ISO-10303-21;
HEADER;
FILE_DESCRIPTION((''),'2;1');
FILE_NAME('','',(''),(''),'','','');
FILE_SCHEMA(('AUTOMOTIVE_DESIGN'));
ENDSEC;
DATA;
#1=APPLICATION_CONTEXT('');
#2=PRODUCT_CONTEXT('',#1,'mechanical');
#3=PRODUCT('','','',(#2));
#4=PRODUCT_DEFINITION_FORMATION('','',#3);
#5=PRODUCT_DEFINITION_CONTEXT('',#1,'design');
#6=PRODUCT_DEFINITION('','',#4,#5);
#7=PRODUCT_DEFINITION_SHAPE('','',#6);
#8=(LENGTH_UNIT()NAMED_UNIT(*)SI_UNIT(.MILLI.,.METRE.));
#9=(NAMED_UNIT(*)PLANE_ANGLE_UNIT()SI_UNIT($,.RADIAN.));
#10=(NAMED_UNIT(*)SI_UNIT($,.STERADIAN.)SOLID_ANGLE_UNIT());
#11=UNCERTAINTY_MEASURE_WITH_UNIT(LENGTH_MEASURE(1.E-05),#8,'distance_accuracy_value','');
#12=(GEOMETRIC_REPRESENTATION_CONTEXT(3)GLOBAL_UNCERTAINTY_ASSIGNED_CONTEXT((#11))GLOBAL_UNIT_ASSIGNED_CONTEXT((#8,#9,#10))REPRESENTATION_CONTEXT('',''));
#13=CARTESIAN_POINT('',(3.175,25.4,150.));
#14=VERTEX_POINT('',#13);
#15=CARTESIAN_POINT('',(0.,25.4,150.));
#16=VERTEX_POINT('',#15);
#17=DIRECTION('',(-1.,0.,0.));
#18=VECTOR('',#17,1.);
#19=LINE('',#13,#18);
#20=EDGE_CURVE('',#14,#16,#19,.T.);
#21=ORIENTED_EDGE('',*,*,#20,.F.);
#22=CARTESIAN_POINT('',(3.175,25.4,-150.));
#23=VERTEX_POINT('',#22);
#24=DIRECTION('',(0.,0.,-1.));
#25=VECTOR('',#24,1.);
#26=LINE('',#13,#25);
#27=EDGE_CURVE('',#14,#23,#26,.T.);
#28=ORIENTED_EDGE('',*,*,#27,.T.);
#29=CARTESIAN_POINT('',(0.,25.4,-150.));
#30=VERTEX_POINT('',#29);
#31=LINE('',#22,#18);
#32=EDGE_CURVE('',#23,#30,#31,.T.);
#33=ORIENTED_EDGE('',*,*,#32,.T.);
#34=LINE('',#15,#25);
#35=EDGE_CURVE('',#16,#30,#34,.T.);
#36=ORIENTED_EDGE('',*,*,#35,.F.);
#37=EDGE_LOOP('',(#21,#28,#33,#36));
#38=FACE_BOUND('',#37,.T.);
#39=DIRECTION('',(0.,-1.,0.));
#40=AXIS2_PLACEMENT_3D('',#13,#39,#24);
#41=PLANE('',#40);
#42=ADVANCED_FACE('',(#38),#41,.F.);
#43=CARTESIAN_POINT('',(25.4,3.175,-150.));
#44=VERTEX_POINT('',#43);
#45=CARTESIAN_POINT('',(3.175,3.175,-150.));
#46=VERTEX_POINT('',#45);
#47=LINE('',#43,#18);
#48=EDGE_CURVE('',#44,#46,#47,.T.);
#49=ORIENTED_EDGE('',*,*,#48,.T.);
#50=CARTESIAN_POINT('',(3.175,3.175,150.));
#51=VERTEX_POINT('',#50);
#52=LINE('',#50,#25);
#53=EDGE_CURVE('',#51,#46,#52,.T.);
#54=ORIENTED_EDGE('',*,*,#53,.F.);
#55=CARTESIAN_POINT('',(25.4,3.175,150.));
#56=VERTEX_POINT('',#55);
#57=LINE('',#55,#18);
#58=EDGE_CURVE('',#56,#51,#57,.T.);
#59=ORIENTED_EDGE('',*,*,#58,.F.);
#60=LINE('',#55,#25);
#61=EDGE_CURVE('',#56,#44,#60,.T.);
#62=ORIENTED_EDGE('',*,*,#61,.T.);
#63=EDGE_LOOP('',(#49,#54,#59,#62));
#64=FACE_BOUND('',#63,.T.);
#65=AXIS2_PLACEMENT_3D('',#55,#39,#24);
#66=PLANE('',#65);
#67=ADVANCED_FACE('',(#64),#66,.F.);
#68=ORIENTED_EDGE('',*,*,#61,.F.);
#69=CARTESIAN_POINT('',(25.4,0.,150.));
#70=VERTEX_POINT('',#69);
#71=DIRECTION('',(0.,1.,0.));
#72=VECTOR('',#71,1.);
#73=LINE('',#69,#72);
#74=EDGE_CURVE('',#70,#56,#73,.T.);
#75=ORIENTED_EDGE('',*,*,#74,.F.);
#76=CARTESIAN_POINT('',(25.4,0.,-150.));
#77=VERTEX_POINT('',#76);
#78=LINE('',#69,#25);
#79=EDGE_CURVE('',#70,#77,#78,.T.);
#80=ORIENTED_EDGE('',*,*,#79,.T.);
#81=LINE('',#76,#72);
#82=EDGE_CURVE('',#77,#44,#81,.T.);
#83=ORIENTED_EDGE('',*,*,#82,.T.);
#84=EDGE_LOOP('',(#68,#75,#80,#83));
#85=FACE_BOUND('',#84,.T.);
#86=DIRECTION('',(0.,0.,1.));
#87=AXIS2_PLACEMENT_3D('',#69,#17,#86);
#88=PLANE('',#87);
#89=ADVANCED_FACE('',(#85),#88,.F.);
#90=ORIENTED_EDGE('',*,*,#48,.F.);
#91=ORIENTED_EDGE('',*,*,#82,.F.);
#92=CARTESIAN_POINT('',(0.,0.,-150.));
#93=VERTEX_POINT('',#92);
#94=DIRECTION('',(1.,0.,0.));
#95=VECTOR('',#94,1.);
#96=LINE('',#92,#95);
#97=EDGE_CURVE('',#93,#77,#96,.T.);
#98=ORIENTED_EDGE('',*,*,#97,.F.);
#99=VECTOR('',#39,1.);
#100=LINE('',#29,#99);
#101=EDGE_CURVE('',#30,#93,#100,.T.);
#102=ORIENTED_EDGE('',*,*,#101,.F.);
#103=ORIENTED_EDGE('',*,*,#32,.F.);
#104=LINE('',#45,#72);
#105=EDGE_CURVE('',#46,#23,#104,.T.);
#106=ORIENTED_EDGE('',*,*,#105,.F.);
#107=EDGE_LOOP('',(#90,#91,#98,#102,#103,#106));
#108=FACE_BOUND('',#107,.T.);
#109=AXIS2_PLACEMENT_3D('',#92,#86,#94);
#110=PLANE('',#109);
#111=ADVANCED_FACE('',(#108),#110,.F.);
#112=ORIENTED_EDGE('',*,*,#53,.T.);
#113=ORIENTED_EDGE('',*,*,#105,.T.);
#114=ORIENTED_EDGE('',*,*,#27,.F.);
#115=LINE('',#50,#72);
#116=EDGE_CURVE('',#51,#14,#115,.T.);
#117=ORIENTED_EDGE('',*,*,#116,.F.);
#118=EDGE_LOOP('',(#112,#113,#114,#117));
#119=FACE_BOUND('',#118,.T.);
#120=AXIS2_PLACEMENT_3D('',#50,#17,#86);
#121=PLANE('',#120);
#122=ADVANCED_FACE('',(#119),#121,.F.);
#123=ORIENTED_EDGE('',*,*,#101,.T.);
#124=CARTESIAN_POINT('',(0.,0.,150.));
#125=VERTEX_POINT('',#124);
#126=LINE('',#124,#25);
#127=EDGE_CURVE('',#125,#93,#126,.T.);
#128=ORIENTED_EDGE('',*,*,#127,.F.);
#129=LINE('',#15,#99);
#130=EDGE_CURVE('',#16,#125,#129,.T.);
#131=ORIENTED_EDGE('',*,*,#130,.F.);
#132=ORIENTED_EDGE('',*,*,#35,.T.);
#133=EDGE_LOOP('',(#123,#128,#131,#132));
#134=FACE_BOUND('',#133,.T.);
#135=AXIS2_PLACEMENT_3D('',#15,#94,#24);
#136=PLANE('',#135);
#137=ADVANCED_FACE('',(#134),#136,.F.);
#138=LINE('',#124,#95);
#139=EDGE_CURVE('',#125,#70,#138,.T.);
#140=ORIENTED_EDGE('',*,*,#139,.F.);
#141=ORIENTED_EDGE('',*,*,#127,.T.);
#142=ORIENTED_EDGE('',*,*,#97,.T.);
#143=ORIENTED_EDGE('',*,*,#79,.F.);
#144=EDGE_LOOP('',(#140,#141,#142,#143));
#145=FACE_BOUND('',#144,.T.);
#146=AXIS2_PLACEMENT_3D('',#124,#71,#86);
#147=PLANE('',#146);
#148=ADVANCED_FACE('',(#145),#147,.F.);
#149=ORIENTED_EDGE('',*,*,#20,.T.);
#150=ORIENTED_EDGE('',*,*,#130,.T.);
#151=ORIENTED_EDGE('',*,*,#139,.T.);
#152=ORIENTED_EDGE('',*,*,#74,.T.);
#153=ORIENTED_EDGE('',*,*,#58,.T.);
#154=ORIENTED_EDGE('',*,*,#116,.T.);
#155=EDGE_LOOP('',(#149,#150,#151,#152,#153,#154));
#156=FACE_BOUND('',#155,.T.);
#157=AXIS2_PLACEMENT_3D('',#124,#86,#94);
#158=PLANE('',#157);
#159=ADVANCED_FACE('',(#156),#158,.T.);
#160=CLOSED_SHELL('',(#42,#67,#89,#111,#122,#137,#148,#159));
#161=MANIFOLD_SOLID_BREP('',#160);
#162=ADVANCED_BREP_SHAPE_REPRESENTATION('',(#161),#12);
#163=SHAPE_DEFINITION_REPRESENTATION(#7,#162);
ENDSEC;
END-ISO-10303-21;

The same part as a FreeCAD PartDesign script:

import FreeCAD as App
import Part
import Sketcher
Q = App.Units.Quantity

doc = App.newDocument("Part")
body = doc.addObject("PartDesign::Body", "Body")

sketch1 = body.newObject("Sketcher::SketchObject", "Sketch")
sketch1.AttachmentSupport = (doc.getObject("XY_Plane"), [""])
sketch1.MapMode = "FlatFace"
sketch1.addGeometry([
    Part.LineSegment(App.Vector(0, 25.4, 0), App.Vector(0, 0, 0)),
    Part.LineSegment(App.Vector(0, 0, 0), App.Vector(25.4, 0, 0)),
    Part.LineSegment(App.Vector(25.4, 0, 0), App.Vector(25.4, 3.175, 0)),
    Part.LineSegment(App.Vector(25.4, 3.175, 0), App.Vector(3.175, 3.175, 0)),
    Part.LineSegment(App.Vector(3.175, 3.175, 0), App.Vector(3.175, 25.4, 0)),
    Part.LineSegment(App.Vector(3.175, 25.4, 0), App.Vector(0, 25.4, 0)),
], False)
sketch1.addConstraint([
    Sketcher.Constraint("Coincident", 0, 2, 1, 1),
    Sketcher.Constraint("Coincident", 1, 2, 2, 1),
    Sketcher.Constraint("Coincident", 2, 2, 3, 1),
    Sketcher.Constraint("Coincident", 3, 2, 4, 1),
    Sketcher.Constraint("Coincident", 4, 2, 5, 1),
    Sketcher.Constraint("Coincident", 5, 2, 0, 1),
    Sketcher.Constraint("Vertical", 0),
    Sketcher.Constraint("Horizontal", 1),
    Sketcher.Constraint("Vertical", 2),
    Sketcher.Constraint("Horizontal", 3),
    Sketcher.Constraint("Vertical", 4),
    Sketcher.Constraint("Horizontal", 5),
    Sketcher.Constraint("Coincident", 0, 2, -1, 1),
    Sketcher.Constraint("Equal", 1, 0),
    Sketcher.Constraint("Equal", 5, 2),
    Sketcher.Constraint("DistanceX", 1, 1, 1, 2, Q("1 in")),
    Sketcher.Constraint("DistanceX", 3, 2, 3, 1, Q("0.875 in")),
])
pad1 = body.newObject("PartDesign::Pad", "Pad")
pad1.Profile = sketch1
pad1.Length = 300
pad1.Midplane = True

doc.recompute()
